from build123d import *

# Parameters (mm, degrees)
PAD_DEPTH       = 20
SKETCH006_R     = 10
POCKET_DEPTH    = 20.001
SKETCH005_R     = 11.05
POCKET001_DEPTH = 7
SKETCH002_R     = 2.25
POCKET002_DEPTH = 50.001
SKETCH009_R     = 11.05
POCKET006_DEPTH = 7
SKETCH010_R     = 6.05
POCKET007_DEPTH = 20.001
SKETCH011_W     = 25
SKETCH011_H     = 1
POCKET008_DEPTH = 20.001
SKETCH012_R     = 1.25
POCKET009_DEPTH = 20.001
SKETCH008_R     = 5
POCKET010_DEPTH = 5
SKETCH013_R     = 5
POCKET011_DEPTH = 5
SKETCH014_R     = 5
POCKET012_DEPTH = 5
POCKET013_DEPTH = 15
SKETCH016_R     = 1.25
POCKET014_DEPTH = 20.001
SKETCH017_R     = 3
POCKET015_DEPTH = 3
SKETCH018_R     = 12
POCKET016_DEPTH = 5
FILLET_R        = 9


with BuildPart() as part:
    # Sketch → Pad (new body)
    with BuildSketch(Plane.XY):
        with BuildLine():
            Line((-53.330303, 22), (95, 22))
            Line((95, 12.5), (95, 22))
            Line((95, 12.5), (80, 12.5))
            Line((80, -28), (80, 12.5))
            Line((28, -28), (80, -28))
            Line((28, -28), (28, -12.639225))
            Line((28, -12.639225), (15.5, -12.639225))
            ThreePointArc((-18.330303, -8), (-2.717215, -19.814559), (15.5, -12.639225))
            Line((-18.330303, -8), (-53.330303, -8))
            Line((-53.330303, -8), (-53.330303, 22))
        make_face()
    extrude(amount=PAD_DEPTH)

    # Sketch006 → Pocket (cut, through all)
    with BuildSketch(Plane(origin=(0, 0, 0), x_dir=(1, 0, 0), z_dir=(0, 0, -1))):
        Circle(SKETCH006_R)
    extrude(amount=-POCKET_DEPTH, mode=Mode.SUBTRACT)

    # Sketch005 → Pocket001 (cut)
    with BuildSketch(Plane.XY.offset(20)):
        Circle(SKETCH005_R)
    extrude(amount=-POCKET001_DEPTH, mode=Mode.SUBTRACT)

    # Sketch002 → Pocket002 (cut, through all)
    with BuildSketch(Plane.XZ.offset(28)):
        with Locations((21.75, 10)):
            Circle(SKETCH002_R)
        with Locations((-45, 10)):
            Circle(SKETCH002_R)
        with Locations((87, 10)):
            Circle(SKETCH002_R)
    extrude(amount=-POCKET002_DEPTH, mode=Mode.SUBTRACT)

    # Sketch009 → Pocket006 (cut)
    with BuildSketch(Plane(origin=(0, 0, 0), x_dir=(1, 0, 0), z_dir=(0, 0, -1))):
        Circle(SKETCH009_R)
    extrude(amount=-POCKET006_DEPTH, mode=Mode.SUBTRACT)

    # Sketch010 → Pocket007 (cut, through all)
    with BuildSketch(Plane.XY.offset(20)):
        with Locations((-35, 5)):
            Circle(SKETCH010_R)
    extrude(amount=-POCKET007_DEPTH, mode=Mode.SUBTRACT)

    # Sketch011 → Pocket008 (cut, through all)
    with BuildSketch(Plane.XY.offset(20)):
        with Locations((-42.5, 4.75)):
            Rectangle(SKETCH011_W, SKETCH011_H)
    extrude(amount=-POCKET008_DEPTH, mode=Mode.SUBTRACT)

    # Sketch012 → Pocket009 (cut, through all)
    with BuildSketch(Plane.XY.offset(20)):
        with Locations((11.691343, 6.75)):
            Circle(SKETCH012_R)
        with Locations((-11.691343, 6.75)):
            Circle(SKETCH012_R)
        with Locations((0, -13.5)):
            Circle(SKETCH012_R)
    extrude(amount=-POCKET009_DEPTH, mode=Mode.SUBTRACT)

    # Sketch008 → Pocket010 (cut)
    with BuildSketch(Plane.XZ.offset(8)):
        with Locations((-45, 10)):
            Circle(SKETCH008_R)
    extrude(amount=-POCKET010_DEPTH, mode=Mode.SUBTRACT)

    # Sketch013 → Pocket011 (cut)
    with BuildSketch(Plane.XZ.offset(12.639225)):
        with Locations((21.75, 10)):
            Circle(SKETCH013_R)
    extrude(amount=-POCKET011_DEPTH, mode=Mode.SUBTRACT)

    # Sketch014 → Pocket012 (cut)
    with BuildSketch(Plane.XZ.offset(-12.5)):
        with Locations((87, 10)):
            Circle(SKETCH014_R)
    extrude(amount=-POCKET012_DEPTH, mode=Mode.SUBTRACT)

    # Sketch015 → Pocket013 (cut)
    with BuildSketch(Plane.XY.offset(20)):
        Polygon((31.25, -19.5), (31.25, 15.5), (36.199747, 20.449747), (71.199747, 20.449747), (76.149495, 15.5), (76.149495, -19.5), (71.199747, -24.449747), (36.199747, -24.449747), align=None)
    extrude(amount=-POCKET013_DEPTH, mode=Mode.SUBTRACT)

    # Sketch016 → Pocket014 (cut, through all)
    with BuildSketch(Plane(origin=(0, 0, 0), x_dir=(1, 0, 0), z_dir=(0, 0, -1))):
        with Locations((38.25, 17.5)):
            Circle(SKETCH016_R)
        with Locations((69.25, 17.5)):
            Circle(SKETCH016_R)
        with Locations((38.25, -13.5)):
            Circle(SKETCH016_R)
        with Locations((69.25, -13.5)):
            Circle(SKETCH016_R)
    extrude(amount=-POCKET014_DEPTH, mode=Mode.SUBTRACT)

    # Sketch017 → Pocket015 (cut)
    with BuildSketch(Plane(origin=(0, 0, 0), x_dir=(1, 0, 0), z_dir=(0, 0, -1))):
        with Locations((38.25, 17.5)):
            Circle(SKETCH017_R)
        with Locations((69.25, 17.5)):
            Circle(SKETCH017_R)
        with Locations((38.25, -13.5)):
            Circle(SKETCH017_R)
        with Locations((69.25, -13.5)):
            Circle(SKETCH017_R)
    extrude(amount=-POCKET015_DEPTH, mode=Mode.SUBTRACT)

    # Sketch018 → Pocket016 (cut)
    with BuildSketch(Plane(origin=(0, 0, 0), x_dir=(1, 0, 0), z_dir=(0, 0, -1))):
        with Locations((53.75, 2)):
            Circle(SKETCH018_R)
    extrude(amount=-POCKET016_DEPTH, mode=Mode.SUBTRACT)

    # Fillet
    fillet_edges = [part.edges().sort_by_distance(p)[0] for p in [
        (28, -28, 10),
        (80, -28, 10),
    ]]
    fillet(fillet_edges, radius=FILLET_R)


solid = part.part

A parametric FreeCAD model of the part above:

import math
import FreeCAD as App
import Part
import Sketcher
Q = App.Units.Quantity


def edges_at(feature, points):
    """Names of the edges that pass closest to the given points."""
    edges = feature.Shape.Edges
    near = lambda p: min(range(len(edges)), key=lambda i: edges[i].distToShape(Part.Vertex(*p))[0])
    return sorted({f"Edge{near(p) + 1}" for p in points})


def add_polygon(sketch, points):
    """Adds a closed chain of lines whose ends are joined by coincident constraints."""
    first, n = sketch.GeometryCount, len(points)
    for a, b in zip(points, points[1:] + points[:1]):
        sketch.addGeometry(Part.LineSegment(App.Vector(*a, 0), App.Vector(*b, 0)), False)
    for i in range(n):
        sketch.addConstraint(Sketcher.Constraint("Coincident", first + i, 2, first + (i + 1) % n, 1))

doc = App.newDocument("Part")
body = doc.addObject("PartDesign::Body", "Body")

# Sketch on XY plane
sketch1 = body.newObject("Sketcher::SketchObject", "Sketch")
sketch1.AttachmentSupport = (doc.getObject("XY_Plane"), [""])
sketch1.MapMode = "FlatFace"
sketch1.addGeometry([
    Part.LineSegment(App.Vector(95, 22, 0), App.Vector(-53, 22, 0)),  # 0
    Part.LineSegment(App.Vector(-53, 22, 0), App.Vector(-53, -8, 0)),  # 1
    Part.LineSegment(App.Vector(-53, -8, 0), App.Vector(-18, -8, 0)),  # 2
    Part.ArcOfCircle(Part.Circle(App.Vector(0, 0, 0), App.Vector(0, 0, 1), 20), math.radians(-156), math.radians(-39)),  # 3
    Part.LineSegment(App.Vector(16, -13, 0), App.Vector(28, -13, 0)),  # 4
    Part.LineSegment(App.Vector(28, -13, 0), App.Vector(28, -28, 0)),  # 5
    Part.LineSegment(App.Vector(28, -28, 0), App.Vector(80, -28, 0)),  # 6
    Part.LineSegment(App.Vector(80, -28, 0), App.Vector(80, 12, 0)),  # 7
    Part.LineSegment(App.Vector(80, 12, 0), App.Vector(95, 12, 0)),  # 8
    Part.LineSegment(App.Vector(95, 12, 0), App.Vector(95, 22, 0)),  # 9
], False)
sketch1.addConstraint([
    Sketcher.Constraint("Coincident", 0, 2, 1, 1),
    Sketcher.Constraint("Coincident", 1, 2, 2, 1),
    Sketcher.Constraint("Coincident", 2, 2, 3, 1),
    Sketcher.Constraint("Coincident", 3, 2, 4, 1),
    Sketcher.Constraint("Coincident", 4, 2, 5, 1),
    Sketcher.Constraint("Coincident", 5, 2, 6, 1),
    Sketcher.Constraint("Coincident", 6, 2, 7, 1),
    Sketcher.Constraint("Coincident", 7, 2, 8, 1),
    Sketcher.Constraint("Coincident", 8, 2, 9, 1),
    Sketcher.Constraint("Coincident", 9, 2, 0, 1),
    Sketcher.Constraint("Horizontal", 0),
    Sketcher.Constraint("Vertical", 1),
    Sketcher.Constraint("Horizontal", 2),
    Sketcher.Constraint("Horizontal", 4),
    Sketcher.Constraint("Vertical", 5),
    Sketcher.Constraint("Horizontal", 6),
    Sketcher.Constraint("Vertical", 7),
    Sketcher.Constraint("Horizontal", 8),
    Sketcher.Constraint("Vertical", 9),
    Sketcher.Constraint("Coincident", 3, 3, -1, 1),
    Sketcher.Constraint("Radius", 3, Q("20 mm")),
    Sketcher.Constraint("DistanceX", 2, 1, 2, 2, Q("35 mm")),
    Sketcher.Constraint("DistanceX", 6, 1, 6, 2, Q("52 mm")),
    Sketcher.Constraint("DistanceX", 8, 1, 8, 2, Q("15 mm")),
    Sketcher.Constraint("DistanceY", 1, 2, 1, 1, Q("30 mm")),
    Sketcher.Constraint("DistanceX", 4, 1, 4, 2, Q("12.5 mm")),
    Sketcher.Constraint("DistanceY", 7, 1, 7, 2, Q("40.5 mm")),
    Sketcher.Constraint("DistanceY", 9, 1, 9, 2, Q("9.5 mm")),
    Sketcher.Constraint("DistanceY", -1, 1, 0, 2, Q("22 mm")),
    Sketcher.Constraint("DistanceX", -1, 1, 4, 2, Q("28 mm")),
])
pad1 = body.newObject("PartDesign::Pad", "Pad")
pad1.Profile = sketch1
pad1.Length = 20

# Sketch on XY plane
sketch2 = body.newObject("Sketcher::SketchObject", "Sketch001")
sketch2.AttachmentSupport = (doc.getObject("XY_Plane"), [""])
sketch2.MapMode = "FlatFace"
sketch2.addGeometry(Part.Circle(App.Vector(0, 0, 0), App.Vector(0, 0, 1), 10), False)
sketch2.addConstraint([
    Sketcher.Constraint("Coincident", 0, 3, -1, 1),
    Sketcher.Constraint("Diameter", 0, Q("20 mm")),
])
pocket1 = body.newObject("PartDesign::Pocket", "Pocket")
pocket1.Profile = sketch2
pocket1.Type = "ThroughAll"
pocket1.Reversed = True

# Sketch on XY plane
sketch3 = body.newObject("Sketcher::SketchObject", "Sketch002")
sketch3.AttachmentSupport = (doc.getObject("XY_Plane"), [""])
sketch3.MapMode = "FlatFace"
sketch3.AttachmentOffset = App.Placement(App.Vector(0, 0, 20), App.Rotation())
sketch3.addGeometry(Part.Circle(App.Vector(0, 0, 0), App.Vector(0, 0, 1), 11), False)
sketch3.addConstraint([
    Sketcher.Constraint("Coincident", 0, 3, -1, 1),
    Sketcher.Constraint("Diameter", 0, Q("22.1 mm")),
])
pocket2 = body.newObject("PartDesign::Pocket", "Pocket001")
pocket2.Profile = sketch3
pocket2.Length = 7

# Sketch on XZ plane
sketch4 = body.newObject("Sketcher::SketchObject", "Sketch003")
sketch4.AttachmentSupport = (doc.getObject("XZ_Plane"), [""])
sketch4.MapMode = "FlatFace"
sketch4.AttachmentOffset = App.Placement(App.Vector(0, 0, 28), App.Rotation())
sketch4.addGeometry([
    Part.Circle(App.Vector(21.8, 10, 0), App.Vector(0, 0, 1), 2.2),
    Part.Circle(App.Vector(-45, 10, 0), App.Vector(0, 0, 1), 2.2),
    Part.Circle(App.Vector(87, 10, 0), App.Vector(0, 0, 1), 2.2),
], False)
sketch4.addConstraint([
    Sketcher.Constraint("Equal", 0, 1),
    Sketcher.Constraint("Equal", 1, 2),
    Sketcher.Constraint("Horizontal", 0, 3, 1, 3),
    Sketcher.Constraint("Horizontal", 1, 3, 2, 3),
    Sketcher.Constraint("Diameter", 0, Q("4.5 mm")),
    Sketcher.Constraint("DistanceY", -1, 1, 0, 3, Q("10 mm")),
    Sketcher.Constraint("DistanceX", 1, 3, -1, 1, Q("45 mm")),
    Sketcher.Constraint("DistanceX", -1, 1, 2, 3, Q("87 mm")),
    Sketcher.Constraint("DistanceX", -1, 1, 0, 3, Q("21.75 mm")),
])
pocket3 = body.newObject("PartDesign::Pocket", "Pocket002")
pocket3.Profile = sketch4
pocket3.Type = "ThroughAll"

# Sketch on XY plane
sketch5 = body.newObject("Sketcher::SketchObject", "Sketch004")
sketch5.AttachmentSupport = (doc.getObject("XY_Plane"), [""])
sketch5.MapMode = "FlatFace"
sketch5.addGeometry(Part.Circle(App.Vector(0, 0, 0), App.Vector(0, 0, 1), 11), False)
sketch5.addConstraint([
    Sketcher.Constraint("Coincident", 0, 3, -1, 1),
    Sketcher.Constraint("Diameter", 0, Q("22.1 mm")),
])
pocket4 = body.newObject("PartDesign::Pocket", "Pocket003")
pocket4.Profile = sketch5
pocket4.Length = 7
pocket4.Reversed = True

# Sketch on XY plane
sketch6 = body.newObject("Sketcher::SketchObject", "Sketch005")
sketch6.AttachmentSupport = (doc.getObject("XY_Plane"), [""])
sketch6.MapMode = "FlatFace"
sketch6.AttachmentOffset = App.Placement(App.Vector(0, 0, 20), App.Rotation())
sketch6.addGeometry(Part.Circle(App.Vector(-35, 5, 0), App.Vector(0, 0, 1), 6), False)
sketch6.addConstraint([
    Sketcher.Constraint("Diameter", 0, Q("12.1 mm")),
    Sketcher.Constraint("DistanceX", 0, 3, -1, 1, Q("35 mm")),
    Sketcher.Constraint("DistanceY", -1, 1, 0, 3, Q("5 mm")),
])
pocket5 = body.newObject("PartDesign::Pocket", "Pocket004")
pocket5.Profile = sketch6
pocket5.Type = "ThroughAll"

# Sketch on XY plane
sketch7 = body.newObject("Sketcher::SketchObject", "Sketch006")
sketch7.AttachmentSupport = (doc.getObject("XY_Plane"), [""])
sketch7.MapMode = "FlatFace"
sketch7.AttachmentOffset = App.Placement(App.Vector(0, 0, 20), App.Rotation())
add_polygon(sketch7, [(-55, 5.2), (-55, 4.2), (-30, 4.2), (-30, 5.2)])  # lines 0-3
sketch7.addConstraint([
    Sketcher.Constraint("Vertical", 0),
    Sketcher.Constraint("Horizontal", 1),
    Sketcher.Constraint("Vertical", 2),
    Sketcher.Constraint("Horizontal", 3),
    Sketcher.Constraint("DistanceX", 1, 1, 1, 2, Q("25 mm")),
    Sketcher.Constraint("DistanceY", 0, 2, 0, 1, Q("1 mm")),
    Sketcher.Constraint("DistanceX", 0, 2, -1, 1, Q("55 mm")),
    Sketcher.Constraint("DistanceY", -1, 1, 0, 2, Q("4.25 mm")),
])
pocket6 = body.newObject("PartDesign::Pocket", "Pocket005")
pocket6.Profile = sketch7
pocket6.Type = "ThroughAll"

# Sketch on XY plane
sketch8 = body.newObject("Sketcher::SketchObject", "Sketch007")
sketch8.AttachmentSupport = (doc.getObject("XY_Plane"), [""])
sketch8.MapMode = "FlatFace"
sketch8.AttachmentOffset = App.Placement(App.Vector(0, 0, 20), App.Rotation())
sketch8.addGeometry([
    Part.Circle(App.Vector(11.7, 6.8, 0), App.Vector(0, 0, 1), 1.2),
    Part.Circle(App.Vector(-11.7, 6.8, 0), App.Vector(0, 0, 1), 1.2),
    Part.Circle(App.Vector(0, -13.5, 0), App.Vector(0, 0, 1), 1.2),
], False)
sketch8.addConstraint([
    Sketcher.Constraint("Equal", 0, 1),
    Sketcher.Constraint("Equal", 1, 2),
    Sketcher.Constraint("Symmetric", 0, 3, 1, 3, -2),
    Sketcher.Constraint("PointOnObject", 2, 3, -2),
    Sketcher.Constraint("Diameter", 0, Q("2.5 mm")),
    Sketcher.Constraint("DistanceY", 2, 3, -1, 1, Q("13.5 mm")),
    Sketcher.Constraint("DistanceY", -1, 1, 0, 3, Q("6.75 mm")),
    Sketcher.Constraint("DistanceX", -1, 1, 0, 3, Q("11.691343 mm")),
])
pocket7 = body.newObject("PartDesign::Pocket", "Pocket006")
pocket7.Profile = sketch8
pocket7.Type = "ThroughAll"

# Sketch on XZ plane
sketch9 = body.newObject("Sketcher::SketchObject", "Sketch008")
sketch9.AttachmentSupport = (doc.getObject("XZ_Plane"), [""])
sketch9.MapMode = "FlatFace"
sketch9.AttachmentOffset = App.Placement(App.Vector(0, 0, 8), App.Rotation())
sketch9.addGeometry(Part.Circle(App.Vector(-45, 10, 0), App.Vector(0, 0, 1), 5), False)
sketch9.addConstraint([
    Sketcher.Constraint("Diameter", 0, Q("10 mm")),
    Sketcher.Constraint("DistanceX", 0, 3, -1, 1, Q("45 mm")),
    Sketcher.Constraint("DistanceY", -1, 1, 0, 3, Q("10 mm")),
])
pocket8 = body.newObject("PartDesign::Pocket", "Pocket007")
pocket8.Profile = sketch9
pocket8.Length = 5

# Sketch on XZ plane
sketch10 = body.newObject("Sketcher::SketchObject", "Sketch009")
sketch10.AttachmentSupport = (doc.getObject("XZ_Plane"), [""])
sketch10.MapMode = "FlatFace"
sketch10.AttachmentOffset = App.Placement(App.Vector(0, 0, 12.639225), App.Rotation())
sketch10.addGeometry(Part.Circle(App.Vector(22, 10, 0), App.Vector(0, 0, 1), 5), False)
sketch10.addConstraint([
    Sketcher.Constraint("Diameter", 0, Q("10 mm")),
    Sketcher.Constraint("DistanceY", -1, 1, 0, 3, Q("10 mm")),
    Sketcher.Constraint("DistanceX", -1, 1, 0, 3, Q("21.75 mm")),
])
pocket9 = body.newObject("PartDesign::Pocket", "Pocket008")
pocket9.Profile = sketch10
pocket9.Length = 5

# Sketch on XZ plane
sketch11 = body.newObject("Sketcher::SketchObject", "Sketch010")
sketch11.AttachmentSupport = (doc.getObject("XZ_Plane"), [""])
sketch11.MapMode = "FlatFace"
sketch11.AttachmentOffset = App.Placement(App.Vector(0, 0, -12.5), App.Rotation())
sketch11.addGeometry(Part.Circle(App.Vector(87, 10, 0), App.Vector(0, 0, 1), 5), False)
sketch11.addConstraint([
    Sketcher.Constraint("Diameter", 0, Q("10 mm")),
    Sketcher.Constraint("DistanceX", -1, 1, 0, 3, Q("87 mm")),
    Sketcher.Constraint("DistanceY", -1, 1, 0, 3, Q("10 mm")),
])
pocket10 = body.newObject("PartDesign::Pocket", "Pocket009")
pocket10.Profile = sketch11
pocket10.Length = 5

# Sketch on XY plane
sketch12 = body.newObject("Sketcher::SketchObject", "Sketch011")
sketch12.AttachmentSupport = (doc.getObject("XY_Plane"), [""])
sketch12.MapMode = "FlatFace"
sketch12.AttachmentOffset = App.Placement(App.Vector(0, 0, 20), App.Rotation())
add_polygon(sketch12, [(31, 16), (31, -20), (36, -24), (71, -24), (76, -20), (76, 16), (71, 20), (36, 20)])  # lines 0-7
sketch12.addConstraint([
    Sketcher.Constraint("Vertical", 0),
    Sketcher.Constraint("Horizontal", 2),
    Sketcher.Constraint("Vertical", 4),
    Sketcher.Constraint("Horizontal", 6),
    Sketcher.Constraint("Perpendicular", 1, 3),
    Sketcher.Constraint("Perpendicular", 3, 5),
    Sketcher.Constraint("Perpendicular", 5, 7),
    Sketcher.Constraint("Horizontal", 0, 2, 3, 2),
    Sketcher.Constraint("Horizontal", 4, 2, 7, 2),
    Sketcher.Constraint("Vertical", 2, 2, 5, 2),
    Sketcher.Constraint("Vertical", 1, 2, 6, 2),
    Sketcher.Constraint("Equal", 6, 0),
    Sketcher.Constraint("DistanceX", 2, 1, 2, 2, Q("35 mm")),
    Sketcher.Constraint("Distance", 1, Q("6.999999 mm")),
    Sketcher.Constraint("DistanceY", 0, 2, -1, 1, Q("19.5 mm")),
    Sketcher.Constraint("DistanceX", -1, 1, 0, 2, Q("31.25 mm")),
])
pocket11 = body.newObject("PartDesign::Pocket", "Pocket010")
pocket11.Profile = sketch12
pocket11.Length = 15

# Sketch on XY plane
sketch13 = body.newObject("Sketcher::SketchObject", "Sketch012")
sketch13.AttachmentSupport = (doc.getObject("XY_Plane"), [""])
sketch13.MapMode = "FlatFace"
sketch13.addGeometry([
    Part.Circle(App.Vector(38.2, -17.5, 0), App.Vector(0, 0, 1), 1.2),
    Part.Circle(App.Vector(69.2, -17.5, 0), App.Vector(0, 0, 1), 1.2),
    Part.Circle(App.Vector(38.2, 13.5, 0), App.Vector(0, 0, 1), 1.2),
    Part.Circle(App.Vector(69.2, 13.5, 0), App.Vector(0, 0, 1), 1.2),
], False)
sketch13.addConstraint([
    Sketcher.Constraint("Equal", 0, 1),
    Sketcher.Constraint("Equal", 1, 2),
    Sketcher.Constraint("Equal", 2, 3),
    Sketcher.Constraint("Horizontal", 0, 3, 1, 3),
    Sketcher.Constraint("Horizontal", 2, 3, 3, 3),
    Sketcher.Constraint("Vertical", 0, 3, 2, 3),
    Sketcher.Constraint("Vertical", 1, 3, 3, 3),
    Sketcher.Constraint("Diameter", 0, Q("2.5 mm")),
    Sketcher.Constraint("DistanceX", 0, 3, 1, 3, Q("31 mm")),
    Sketcher.Constraint("DistanceY", 0, 3, 2, 3, Q("31 mm")),
    Sketcher.Constraint("DistanceY", 0, 3, -1, 1, Q("17.5 mm")),
    Sketcher.Constraint("DistanceX", -1, 1, 0, 3, Q("38.25 mm")),
])
pocket12 = body.newObject("PartDesign::Pocket", "Pocket011")
pocket12.Profile = sketch13
pocket12.Type = "ThroughAll"
pocket12.Reversed = True

# Sketch on XY plane
sketch14 = body.newObject("Sketcher::SketchObject", "Sketch013")
sketch14.AttachmentSupport = (doc.getObject("XY_Plane"), [""])
sketch14.MapMode = "FlatFace"
sketch14.addGeometry([
    Part.Circle(App.Vector(38.2, -17.5, 0), App.Vector(0, 0, 1), 3),
    Part.Circle(App.Vector(69.2, -17.5, 0), App.Vector(0, 0, 1), 3),
    Part.Circle(App.Vector(38.2, 13.5, 0), App.Vector(0, 0, 1), 3),
    Part.Circle(App.Vector(69.2, 13.5, 0), App.Vector(0, 0, 1), 3),
], False)
sketch14.addConstraint([
    Sketcher.Constraint("Equal", 0, 1),
    Sketcher.Constraint("Equal", 1, 2),
    Sketcher.Constraint("Equal", 2, 3),
    Sketcher.Constraint("Horizontal", 0, 3, 1, 3),
    Sketcher.Constraint("Horizontal", 2, 3, 3, 3),
    Sketcher.Constraint("Vertical", 0, 3, 2, 3),
    Sketcher.Constraint("Vertical", 1, 3, 3, 3),
    Sketcher.Constraint("Diameter", 0, Q("6 mm")),
    Sketcher.Constraint("DistanceX", 0, 3, 1, 3, Q("31 mm")),
    Sketcher.Constraint("DistanceY", 0, 3, 2, 3, Q("31 mm")),
    Sketcher.Constraint("DistanceY", 0, 3, -1, 1, Q("17.5 mm")),
    Sketcher.Constraint("DistanceX", -1, 1, 0, 3, Q("38.25 mm")),
])
pocket13 = body.newObject("PartDesign::Pocket", "Pocket012")
pocket13.Profile = sketch14
pocket13.Length = 3
pocket13.Reversed = True

# Sketch on XY plane
sketch15 = body.newObject("Sketcher::SketchObject", "Sketch014")
sketch15.AttachmentSupport = (doc.getObject("XY_Plane"), [""])
sketch15.MapMode = "FlatFace"
sketch15.addGeometry(Part.Circle(App.Vector(54, -2, 0), App.Vector(0, 0, 1), 12), False)
sketch15.addConstraint([
    Sketcher.Constraint("Diameter", 0, Q("24 mm")),
    Sketcher.Constraint("DistanceY", 0, 3, -1, 1, Q("2 mm")),
    Sketcher.Constraint("DistanceX", -1, 1, 0, 3, Q("53.75 mm")),
])
pocket14 = body.newObject("PartDesign::Pocket", "Pocket013")
pocket14.Profile = sketch15
pocket14.Length = 5
pocket14.Reversed = True
doc.recompute()

fillet = body.newObject("PartDesign::Fillet", "Fillet")
fillet.Base = (pocket14, edges_at(pocket14, [(28, -28, 10), (80, -28, 10)]))
fillet.Radius = 9

doc.recompute()
